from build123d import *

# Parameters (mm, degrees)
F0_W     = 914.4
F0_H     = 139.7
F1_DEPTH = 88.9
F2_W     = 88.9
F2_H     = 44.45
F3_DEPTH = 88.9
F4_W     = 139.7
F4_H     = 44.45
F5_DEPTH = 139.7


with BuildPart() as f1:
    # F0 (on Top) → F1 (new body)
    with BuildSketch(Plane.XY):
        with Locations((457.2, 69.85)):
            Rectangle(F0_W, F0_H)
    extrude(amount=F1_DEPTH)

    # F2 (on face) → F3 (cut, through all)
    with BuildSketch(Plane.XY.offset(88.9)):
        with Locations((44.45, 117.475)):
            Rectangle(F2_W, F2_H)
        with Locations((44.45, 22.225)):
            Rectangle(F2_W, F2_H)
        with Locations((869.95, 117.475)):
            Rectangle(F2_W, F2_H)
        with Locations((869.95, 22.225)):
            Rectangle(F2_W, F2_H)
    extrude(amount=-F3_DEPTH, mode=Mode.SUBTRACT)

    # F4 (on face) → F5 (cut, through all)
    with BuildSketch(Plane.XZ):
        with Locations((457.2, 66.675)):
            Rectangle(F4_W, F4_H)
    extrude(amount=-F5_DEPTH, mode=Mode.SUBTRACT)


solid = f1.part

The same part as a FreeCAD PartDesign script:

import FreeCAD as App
import Part
import Sketcher
Q = App.Units.Quantity


def add_polygon(sketch, points):
    """Adds a closed chain of lines whose ends are joined by coincident constraints."""
    first, n = sketch.GeometryCount, len(points)
    for a, b in zip(points, points[1:] + points[:1]):
        sketch.addGeometry(Part.LineSegment(App.Vector(*a, 0), App.Vector(*b, 0)), False)
    for i in range(n):
        sketch.addConstraint(Sketcher.Constraint("Coincident", first + i, 2, first + (i + 1) % n, 1))

doc = App.newDocument("Part")
body = doc.addObject("PartDesign::Body", "Body")

# Sketch on XY plane
sketch1 = body.newObject("Sketcher::SketchObject", "Sketch")
sketch1.AttachmentSupport = (doc.getObject("XY_Plane"), [""])
sketch1.MapMode = "FlatFace"
add_polygon(sketch1, [(0, 140), (0, 0), (914, 0), (914, 140)])  # lines 0-3
sketch1.addConstraint([
    Sketcher.Constraint("Vertical", 0),
    Sketcher.Constraint("Horizontal", 1),
    Sketcher.Constraint("Vertical", 2),
    Sketcher.Constraint("Horizontal", 3),
    Sketcher.Constraint("Coincident", 0, 2, -1, 1),
    Sketcher.Constraint("DistanceX", 1, 1, 1, 2, Q("36 in")),
    Sketcher.Constraint("DistanceY", 0, 2, 0, 1, Q("5.5 in")),
])
pad1 = body.newObject("PartDesign::Pad", "Pad")
pad1.Profile = sketch1
pad1.Length = Q("3.5 in")

# Sketch on XY plane
sketch2 = body.newObject("Sketcher::SketchObject", "Sketch001")
sketch2.AttachmentSupport = (doc.getObject("XY_Plane"), [""])
sketch2.MapMode = "FlatFace"
sketch2.AttachmentOffset = App.Placement(App.Vector(0, 0, 3.5 * 25.4), App.Rotation())
add_polygon(sketch2, [(0, 140), (0, 95), (89, 95), (89, 140)])  # lines 0-3
add_polygon(sketch2, [(0, 44), (0, 0), (89, 0), (89, 44)])  # lines 4-7
add_polygon(sketch2, [(826, 140), (826, 95), (914, 95), (914, 140)])  # lines 8-11
add_polygon(sketch2, [(826, 44), (826, 0), (914, 0), (914, 44)])  # lines 12-15
sketch2.addConstraint([
    Sketcher.Constraint("Vertical", 0),
    Sketcher.Constraint("Horizontal", 1),
    Sketcher.Constraint("Vertical", 2),
    Sketcher.Constraint("Horizontal", 3),
    Sketcher.Constraint("Vertical", 4),
    Sketcher.Constraint("Horizontal", 5),
    Sketcher.Constraint("Vertical", 6),
    Sketcher.Constraint("Horizontal", 7),
    Sketcher.Constraint("Vertical", 8),
    Sketcher.Constraint("Horizontal", 9),
    Sketcher.Constraint("Vertical", 10),
    Sketcher.Constraint("Horizontal", 11),
    Sketcher.Constraint("Vertical", 12),
    Sketcher.Constraint("Horizontal", 13),
    Sketcher.Constraint("Vertical", 14),
    Sketcher.Constraint("Horizontal", 15),
    Sketcher.Constraint("Coincident", 4, 2, -1, 1),
    Sketcher.Constraint("PointOnObject", 0, 2, -2),
    Sketcher.Constraint("PointOnObject", 12, 2, -1),
    Sketcher.Constraint("Horizontal", 1, 2, 8, 2),
    Sketcher.Constraint("Horizontal", 3, 2, 10, 2),
    Sketcher.Constraint("Horizontal", 7, 2, 14, 2),
    Sketcher.Constraint("Vertical", 2, 2, 5, 2),
    Sketcher.Constraint("Vertical", 11, 2, 12, 2),
    Sketcher.Constraint("Vertical", 10, 2, 13, 2),
    Sketcher.Constraint("Equal", 7, 9),
    Sketcher.Constraint("Equal", 2, 4),
    Sketcher.Constraint("DistanceX", 1, 1, 1, 2, Q("3.5 in")),
    Sketcher.Constraint("DistanceX", -1, 1, 9, 2, Q("36 in")),
    Sketcher.Constraint("DistanceY", 6, 2, 1, 2, Q("2 in")),
    Sketcher.Constraint("DistanceY", 0, 2, 0, 1, Q("1.75 in")),
])
pocket1 = body.newObject("PartDesign::Pocket", "Pocket")
pocket1.Profile = sketch2
pocket1.Type = "ThroughAll"

# Sketch on XZ plane
sketch3 = body.newObject("Sketcher::SketchObject", "Sketch002")
sketch3.AttachmentSupport = (doc.getObject("XZ_Plane"), [""])
sketch3.MapMode = "FlatFace"
add_polygon(sketch3, [(387, 89), (387, 44), (527, 44), (527, 89)])  # lines 0-3
sketch3.addConstraint([
    Sketcher.Constraint("Vertical", 0),
    Sketcher.Constraint("Horizontal", 1),
    Sketcher.Constraint("Vertical", 2),
    Sketcher.Constraint("Horizontal", 3),
    Sketcher.Constraint("DistanceX", 1, 1, 1, 2, Q("5.5 in")),
    Sketcher.Constraint("DistanceY", 0, 2, 0, 1, Q("1.75 in")),
    Sketcher.Constraint("DistanceY", -1, 1, 2, 2, Q("3.5 in")),
    Sketcher.Constraint("DistanceX", -1, 1, 0, 2, Q("15.25 in")),
])
pocket2 = body.newObject("PartDesign::Pocket", "Pocket001")
pocket2.Profile = sketch3
pocket2.Type = "ThroughAll"

doc.recompute()
